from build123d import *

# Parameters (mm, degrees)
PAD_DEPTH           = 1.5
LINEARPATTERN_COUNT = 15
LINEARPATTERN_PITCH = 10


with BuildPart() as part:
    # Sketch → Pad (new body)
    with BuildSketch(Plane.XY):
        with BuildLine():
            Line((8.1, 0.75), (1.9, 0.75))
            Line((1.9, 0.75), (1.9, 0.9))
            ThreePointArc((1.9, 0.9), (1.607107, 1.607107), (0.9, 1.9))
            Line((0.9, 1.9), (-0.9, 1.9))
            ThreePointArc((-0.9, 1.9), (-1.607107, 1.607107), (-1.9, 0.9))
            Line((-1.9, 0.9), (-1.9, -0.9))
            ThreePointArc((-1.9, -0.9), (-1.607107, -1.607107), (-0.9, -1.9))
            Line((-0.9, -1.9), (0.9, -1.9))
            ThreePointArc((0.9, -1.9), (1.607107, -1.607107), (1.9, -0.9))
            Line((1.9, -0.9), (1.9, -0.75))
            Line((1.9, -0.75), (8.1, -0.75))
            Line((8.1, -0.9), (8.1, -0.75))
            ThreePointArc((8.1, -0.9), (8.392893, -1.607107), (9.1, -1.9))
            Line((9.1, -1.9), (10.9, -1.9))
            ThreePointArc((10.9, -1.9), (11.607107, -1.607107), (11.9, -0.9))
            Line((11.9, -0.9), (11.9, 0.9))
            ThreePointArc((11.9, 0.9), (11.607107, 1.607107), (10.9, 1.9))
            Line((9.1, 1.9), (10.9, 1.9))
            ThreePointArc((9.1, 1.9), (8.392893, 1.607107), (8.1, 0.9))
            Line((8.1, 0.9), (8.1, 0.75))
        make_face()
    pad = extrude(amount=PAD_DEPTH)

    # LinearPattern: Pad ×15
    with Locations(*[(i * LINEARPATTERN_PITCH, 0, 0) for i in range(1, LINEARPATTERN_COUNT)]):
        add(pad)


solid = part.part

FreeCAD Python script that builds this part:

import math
import FreeCAD as App
import Part
import Sketcher
from FreeCAD import Vector

doc = App.newDocument("Part")
body = doc.addObject("PartDesign::Body", "Body")

# Sketch on XY plane
sketch1 = body.newObject("Sketcher::SketchObject", "Sketch")
sketch1.AttachmentSupport = (doc.getObject("XY_Plane"), [""])
sketch1.MapMode = "FlatFace"
sketch1.addGeometry([
    Part.LineSegment(Vector(8.1, 0.75, 0), Vector(1.9, 0.75, 0)),  # 0
    Part.LineSegment(Vector(1.9, 0.75, 0), Vector(1.9, 0.9, 0)),  # 1
    Part.ArcOfCircle(Part.Circle(Vector(0.9, 0.9, 0), Vector(0, 0, 1), 1), math.radians(0), math.radians(90)),  # 2
    Part.LineSegment(Vector(0.9, 1.9, 0), Vector(-0.9, 1.9, 0)),  # 3
    Part.ArcOfCircle(Part.Circle(Vector(-0.9, 0.9, 0), Vector(0, 0, 1), 1), math.radians(90), math.radians(180)),  # 4
    Part.LineSegment(Vector(-1.9, 0.9, 0), Vector(-1.9, -0.9, 0)),  # 5
    Part.ArcOfCircle(Part.Circle(Vector(-0.9, -0.9, 0), Vector(0, 0, 1), 1), math.radians(180), math.radians(270)),  # 6
    Part.LineSegment(Vector(-0.9, -1.9, 0), Vector(0.9, -1.9, 0)),  # 7
    Part.ArcOfCircle(Part.Circle(Vector(0.9, -0.9, 0), Vector(0, 0, 1), 1), math.radians(-90), math.radians(0)),  # 8
    Part.LineSegment(Vector(1.9, -0.9, 0), Vector(1.9, -0.75, 0)),  # 9
    Part.LineSegment(Vector(1.9, -0.75, 0), Vector(8.1, -0.75, 0)),  # 10
    Part.LineSegment(Vector(8.1, -0.75, 0), Vector(8.1, -0.9, 0)),  # 11
    Part.ArcOfCircle(Part.Circle(Vector(9.1, -0.9, 0), Vector(0, 0, 1), 1), math.radians(180), math.radians(270)),  # 12
    Part.LineSegment(Vector(9.1, -1.9, 0), Vector(10.9, -1.9, 0)),  # 13
    Part.ArcOfCircle(Part.Circle(Vector(10.9, -0.9, 0), Vector(0, 0, 1), 1), math.radians(-90), math.radians(0)),  # 14
    Part.LineSegment(Vector(11.9, -0.9, 0), Vector(11.9, 0.9, 0)),  # 15
    Part.ArcOfCircle(Part.Circle(Vector(10.9, 0.9, 0), Vector(0, 0, 1), 1), math.radians(0), math.radians(90)),  # 16
    Part.LineSegment(Vector(10.9, 1.9, 0), Vector(9.1, 1.9, 0)),  # 17
    Part.ArcOfCircle(Part.Circle(Vector(9.1, 0.9, 0), Vector(0, 0, 1), 1), math.radians(90), math.radians(180)),  # 18
    Part.LineSegment(Vector(8.1, 0.9, 0), Vector(8.1, 0.75, 0)),  # 19
], False)
sketch1.addConstraint([
    Sketcher.Constraint("Coincident", 0, 2, 1, 1),
    Sketcher.Constraint("Tangent", 1, 2, 2, 1),
    Sketcher.Constraint("Tangent", 2, 2, 3, 1),
    Sketcher.Constraint("Tangent", 3, 2, 4, 1),
    Sketcher.Constraint("Tangent", 4, 2, 5, 1),
    Sketcher.Constraint("Tangent", 5, 2, 6, 1),
    Sketcher.Constraint("Tangent", 6, 2, 7, 1),
    Sketcher.Constraint("Tangent", 7, 2, 8, 1),
    Sketcher.Constraint("Tangent", 8, 2, 9, 1),
    Sketcher.Constraint("Coincident", 9, 2, 10, 1),
    Sketcher.Constraint("Coincident", 10, 2, 11, 1),
    Sketcher.Constraint("Tangent", 11, 2, 12, 1),
    Sketcher.Constraint("Tangent", 12, 2, 13, 1),
    Sketcher.Constraint("Tangent", 13, 2, 14, 1),
    Sketcher.Constraint("Tangent", 14, 2, 15, 1),
    Sketcher.Constraint("Tangent", 15, 2, 16, 1),
    Sketcher.Constraint("Tangent", 16, 2, 17, 1),
    Sketcher.Constraint("Tangent", 17, 2, 18, 1),
    Sketcher.Constraint("Tangent", 18, 2, 19, 1),
    Sketcher.Constraint("Coincident", 19, 2, 0, 1),
    Sketcher.Constraint("Horizontal", 0),
    Sketcher.Constraint("Vertical", 1),
    Sketcher.Constraint("Horizontal", 3),
    Sketcher.Constraint("Vertical", 5),
    Sketcher.Constraint("Horizontal", 7),
    Sketcher.Constraint("Vertical", 9),
    Sketcher.Constraint("Horizontal", 10),
    Sketcher.Constraint("Vertical", 11),
    Sketcher.Constraint("Horizontal", 13),
    Sketcher.Constraint("Vertical", 15),
    Sketcher.Constraint("Horizontal", 17),
    Sketcher.Constraint("Vertical", 19),
    Sketcher.Constraint("Equal", 2, 4),
    Sketcher.Constraint("Equal", 4, 6),
    Sketcher.Constraint("Equal", 6, 8),
    Sketcher.Constraint("Equal", 8, 12),
    Sketcher.Constraint("Equal", 12, 14),
    Sketcher.Constraint("Equal", 14, 16),
    Sketcher.Constraint("Equal", 16, 18),
    Sketcher.Constraint("Symmetric", 2, 3, 6, 3, -1, 1),
    Sketcher.Constraint("Symmetric", 12, 3, 18, 3, -1),
    Sketcher.Constraint("Symmetric", 0, 2, 9, 2, -1),
    Sketcher.Constraint("Horizontal", 8, 3, 12, 3),
    Sketcher.Constraint("Equal", 7, 13),
    Sketcher.Constraint("Equal", 17, 5),
    Sketcher.Constraint("Radius", 2, 0.999999),
    Sketcher.Constraint("DistanceX", 0, 2, 0, 1, 6.2),
    Sketcher.Constraint("DistanceX", 3, 2, 3, 1, 1.8),
    Sketcher.Constraint("DistanceY", 1, 1, 1, 2, 0.15),
])
pad1 = body.newObject("PartDesign::Pad", "Pad")
pad1.Profile = sketch1
pad1.Length = 1.5
doc.recompute()

linearpattern = body.newObject("PartDesign::LinearPattern", "LinearPattern")
linearpattern.Originals = [pad1]
linearpattern.Direction = (doc.getObject("X_Axis"), [""])
linearpattern.Mode = "offset"
linearpattern.Offset = 10
linearpattern.Occurrences = 15
body.Tip = linearpattern

doc.recompute()
